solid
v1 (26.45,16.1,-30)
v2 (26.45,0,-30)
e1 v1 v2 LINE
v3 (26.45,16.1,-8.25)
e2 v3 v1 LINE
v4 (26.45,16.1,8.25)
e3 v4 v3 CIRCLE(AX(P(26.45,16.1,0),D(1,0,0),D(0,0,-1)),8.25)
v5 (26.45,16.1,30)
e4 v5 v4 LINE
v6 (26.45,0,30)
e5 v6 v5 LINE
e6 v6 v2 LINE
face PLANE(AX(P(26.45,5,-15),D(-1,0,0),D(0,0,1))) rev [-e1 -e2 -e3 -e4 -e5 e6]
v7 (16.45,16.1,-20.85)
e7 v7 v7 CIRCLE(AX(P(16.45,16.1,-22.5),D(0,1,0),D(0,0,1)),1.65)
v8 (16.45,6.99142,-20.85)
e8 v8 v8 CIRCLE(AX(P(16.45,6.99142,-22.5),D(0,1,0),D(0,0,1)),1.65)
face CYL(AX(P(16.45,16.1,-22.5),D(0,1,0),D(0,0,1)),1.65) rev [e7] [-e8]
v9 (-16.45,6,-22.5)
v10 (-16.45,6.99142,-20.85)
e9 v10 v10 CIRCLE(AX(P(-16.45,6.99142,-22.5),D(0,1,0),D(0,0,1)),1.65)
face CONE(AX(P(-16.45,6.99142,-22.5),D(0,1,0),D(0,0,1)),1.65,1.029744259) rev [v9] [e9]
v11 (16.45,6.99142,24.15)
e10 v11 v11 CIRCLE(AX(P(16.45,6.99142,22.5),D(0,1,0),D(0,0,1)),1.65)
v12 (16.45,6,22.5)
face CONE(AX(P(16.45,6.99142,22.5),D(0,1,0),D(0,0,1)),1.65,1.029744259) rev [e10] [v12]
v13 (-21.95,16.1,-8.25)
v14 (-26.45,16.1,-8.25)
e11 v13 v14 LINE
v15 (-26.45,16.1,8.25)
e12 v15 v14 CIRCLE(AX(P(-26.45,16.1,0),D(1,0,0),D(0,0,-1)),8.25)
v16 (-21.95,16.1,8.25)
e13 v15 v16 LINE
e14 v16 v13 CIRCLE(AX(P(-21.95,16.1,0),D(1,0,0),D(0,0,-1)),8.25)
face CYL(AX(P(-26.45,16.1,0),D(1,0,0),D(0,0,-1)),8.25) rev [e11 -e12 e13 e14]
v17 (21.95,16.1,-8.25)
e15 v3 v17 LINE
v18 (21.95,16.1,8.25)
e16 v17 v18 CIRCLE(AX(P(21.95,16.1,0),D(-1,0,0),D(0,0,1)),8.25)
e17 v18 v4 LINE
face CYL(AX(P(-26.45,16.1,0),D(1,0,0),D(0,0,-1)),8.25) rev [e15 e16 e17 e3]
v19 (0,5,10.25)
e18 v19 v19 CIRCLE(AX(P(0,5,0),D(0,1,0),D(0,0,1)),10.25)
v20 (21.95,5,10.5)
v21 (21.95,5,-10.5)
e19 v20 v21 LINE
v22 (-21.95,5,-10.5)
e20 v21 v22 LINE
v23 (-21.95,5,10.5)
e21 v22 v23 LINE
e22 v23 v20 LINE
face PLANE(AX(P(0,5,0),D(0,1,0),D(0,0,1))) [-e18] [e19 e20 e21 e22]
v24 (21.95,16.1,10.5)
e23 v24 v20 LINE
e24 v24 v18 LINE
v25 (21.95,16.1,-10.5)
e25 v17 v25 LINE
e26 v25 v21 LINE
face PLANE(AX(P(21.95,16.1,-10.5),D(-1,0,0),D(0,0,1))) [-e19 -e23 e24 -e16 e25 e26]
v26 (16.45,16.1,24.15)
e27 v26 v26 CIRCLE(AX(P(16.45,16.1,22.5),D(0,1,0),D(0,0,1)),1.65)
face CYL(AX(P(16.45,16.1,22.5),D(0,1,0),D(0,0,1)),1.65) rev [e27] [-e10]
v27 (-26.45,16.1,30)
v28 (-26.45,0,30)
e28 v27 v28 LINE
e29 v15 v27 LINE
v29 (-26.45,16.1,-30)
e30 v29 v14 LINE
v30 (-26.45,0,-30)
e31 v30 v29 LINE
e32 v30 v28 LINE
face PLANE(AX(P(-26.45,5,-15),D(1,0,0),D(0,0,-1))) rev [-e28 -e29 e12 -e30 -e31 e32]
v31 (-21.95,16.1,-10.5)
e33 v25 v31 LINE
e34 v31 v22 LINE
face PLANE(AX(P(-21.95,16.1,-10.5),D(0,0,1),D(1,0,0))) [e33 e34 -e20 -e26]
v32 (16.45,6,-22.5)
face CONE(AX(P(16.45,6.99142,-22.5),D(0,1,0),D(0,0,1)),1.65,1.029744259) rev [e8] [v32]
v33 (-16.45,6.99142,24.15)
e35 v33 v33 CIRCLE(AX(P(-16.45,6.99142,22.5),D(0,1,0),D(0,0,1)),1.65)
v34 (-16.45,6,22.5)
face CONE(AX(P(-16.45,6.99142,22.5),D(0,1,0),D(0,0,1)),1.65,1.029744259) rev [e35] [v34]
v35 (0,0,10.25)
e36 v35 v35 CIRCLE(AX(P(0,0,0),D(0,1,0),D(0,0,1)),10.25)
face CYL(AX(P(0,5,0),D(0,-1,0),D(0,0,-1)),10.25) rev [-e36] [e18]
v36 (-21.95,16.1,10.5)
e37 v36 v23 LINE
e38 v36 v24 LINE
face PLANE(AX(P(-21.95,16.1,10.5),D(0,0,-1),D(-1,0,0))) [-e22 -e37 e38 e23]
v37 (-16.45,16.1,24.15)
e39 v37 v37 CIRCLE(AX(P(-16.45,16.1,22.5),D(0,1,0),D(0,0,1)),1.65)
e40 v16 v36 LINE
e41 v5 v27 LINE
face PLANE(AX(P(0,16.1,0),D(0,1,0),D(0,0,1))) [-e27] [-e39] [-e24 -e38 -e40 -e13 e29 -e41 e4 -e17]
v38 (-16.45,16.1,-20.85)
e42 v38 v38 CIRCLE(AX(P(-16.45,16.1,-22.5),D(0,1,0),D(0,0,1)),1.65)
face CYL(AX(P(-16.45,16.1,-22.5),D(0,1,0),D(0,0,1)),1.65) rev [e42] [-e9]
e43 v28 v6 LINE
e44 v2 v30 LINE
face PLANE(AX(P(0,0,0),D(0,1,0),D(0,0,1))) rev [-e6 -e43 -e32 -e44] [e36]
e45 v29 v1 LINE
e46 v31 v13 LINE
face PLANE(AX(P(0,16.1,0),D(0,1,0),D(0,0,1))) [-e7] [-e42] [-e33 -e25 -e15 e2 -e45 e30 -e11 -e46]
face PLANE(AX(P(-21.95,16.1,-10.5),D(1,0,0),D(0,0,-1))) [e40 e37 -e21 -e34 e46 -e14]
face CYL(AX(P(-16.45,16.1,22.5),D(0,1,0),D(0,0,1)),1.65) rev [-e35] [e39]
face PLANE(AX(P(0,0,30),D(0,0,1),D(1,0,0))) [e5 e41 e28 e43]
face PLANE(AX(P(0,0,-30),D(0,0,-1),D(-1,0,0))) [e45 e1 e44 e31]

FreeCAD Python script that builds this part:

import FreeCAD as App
import Part
import Sketcher

doc = App.newDocument("Part")
body = doc.addObject("PartDesign::Body", "Body")

sketch1 = body.newObject("Sketcher::SketchObject", "Sketch")
sketch1.AttachmentSupport = (doc.getObject("XZ_Plane"), [""])
sketch1.MapMode = "FlatFace"
sketch1.addGeometry([
    Part.LineSegment(App.Vector(-26, -15, 0), App.Vector(-26, 15, 0)),
    Part.LineSegment(App.Vector(-26, 15, 0), App.Vector(26, 15, 0)),
    Part.LineSegment(App.Vector(26, 15, 0), App.Vector(26, -15, 0)),
    Part.LineSegment(App.Vector(26, -15, 0), App.Vector(-26, -15, 0)),
    Part.Circle(App.Vector(0, 0, 0), App.Vector(0, 0, 1), 10),
], False)
sketch1.addConstraint([
    Sketcher.Constraint("Coincident", 0, 2, 1, 1),
    Sketcher.Constraint("Coincident", 1, 2, 2, 1),
    Sketcher.Constraint("Coincident", 2, 2, 3, 1),
    Sketcher.Constraint("Coincident", 3, 2, 0, 1),
    Sketcher.Constraint("Vertical", 0),
    Sketcher.Constraint("Horizontal", 1),
    Sketcher.Constraint("Vertical", 2),
    Sketcher.Constraint("Horizontal", 3),
    Sketcher.Constraint("Coincident", 4, 3, -1, 1),
    Sketcher.Constraint("Symmetric", 0, 2, 2, 2, -1, 1),
    Sketcher.Constraint("Diameter", 4, 20.5),
    Sketcher.Constraint("DistanceY", 0, 1, 0, 2, 30.0),
    Sketcher.Constraint("DistanceX", 1, 1, 1, 2, 52.9),
])
pad1 = body.newObject("PartDesign::Pad", "Pad")
pad1.Profile = sketch1
pad1.Length = 5
pad1.Reversed = True

sketch2 = body.newObject("Sketcher::SketchObject", "Sketch001")
sketch2.AttachmentSupport = (doc.getObject("XZ_Plane"), [""])
sketch2.MapMode = "FlatFace"
sketch2.AttachmentOffset = App.Placement(App.Vector(0, 0, -5), App.Rotation())
sketch2.addGeometry([
    Part.LineSegment(App.Vector(-26, -15, 0), App.Vector(-26, 15, 0)),
    Part.LineSegment(App.Vector(-26, 15, 0), App.Vector(26, 15, 0)),
    Part.LineSegment(App.Vector(26, 15, 0), App.Vector(26, -15, 0)),
    Part.LineSegment(App.Vector(26, -15, 0), App.Vector(-26, -15, 0)),
    Part.LineSegment(App.Vector(22, 10, 0), App.Vector(-22, 10, 0)),
    Part.LineSegment(App.Vector(-22, 10, 0), App.Vector(-22, -10, 0)),
    Part.LineSegment(App.Vector(-22, -10, 0), App.Vector(22, -10, 0)),
    Part.LineSegment(App.Vector(22, -10, 0), App.Vector(22, 10, 0)),
], False)
sketch2.addConstraint([
    Sketcher.Constraint("Coincident", 0, 2, 1, 1),
    Sketcher.Constraint("Coincident", 1, 2, 2, 1),
    Sketcher.Constraint("Coincident", 2, 2, 3, 1),
    Sketcher.Constraint("Coincident", 3, 2, 0, 1),
    Sketcher.Constraint("Coincident", 4, 2, 5, 1),
    Sketcher.Constraint("Coincident", 5, 2, 6, 1),
    Sketcher.Constraint("Coincident", 6, 2, 7, 1),
    Sketcher.Constraint("Coincident", 7, 2, 4, 1),
    Sketcher.Constraint("Vertical", 0),
    Sketcher.Constraint("Horizontal", 1),
    Sketcher.Constraint("Vertical", 2),
    Sketcher.Constraint("Horizontal", 3),
    Sketcher.Constraint("Horizontal", 4),
    Sketcher.Constraint("Vertical", 5),
    Sketcher.Constraint("Horizontal", 6),
    Sketcher.Constraint("Vertical", 7),
    Sketcher.Constraint("Symmetric", 0, 2, 2, 2, -1, 1),
    Sketcher.Constraint("Symmetric", 4, 2, 6, 2, -1, 1),
    Sketcher.Constraint("DistanceY", 0, 1, 0, 2, 30.0),
    Sketcher.Constraint("DistanceY", 5, 2, 5, 1, 21.0),
    Sketcher.Constraint("DistanceX", 1, 1, 1, 2, 52.9),
    Sketcher.Constraint("DistanceX", 4, 2, 4, 1, 43.9),
])
pad2 = body.newObject("PartDesign::Pad", "Pad001")
pad2.Profile = sketch2
pad2.Length = 11.1
pad2.Reversed = True

sketch3 = body.newObject("Sketcher::SketchObject", "Sketch002")
sketch3.AttachmentSupport = (doc.getObject("YZ_Plane"), [""])
sketch3.MapMode = "FlatFace"
sketch3.AttachmentOffset = App.Placement(App.Vector(0, 0, 26.45), App.Rotation())
sketch3.addGeometry(Part.Circle(App.Vector(16, 0, 0), App.Vector(0, 0, 1), 8), False)
sketch3.addConstraint([
    Sketcher.Constraint("PointOnObject", 0, 3, -1),
    Sketcher.Constraint("Diameter", 0, 16.5),
    Sketcher.Constraint("DistanceX", -1, 1, 0, 3, 16.1),
])
pocket1 = body.newObject("PartDesign::Pocket", "Pocket")
pocket1.Profile = sketch3
pocket1.Type = "ThroughAll"

sketch4 = body.newObject("Sketcher::SketchObject", "Sketch003")
sketch4.AttachmentSupport = (doc.getObject("XY_Plane"), [""])
sketch4.MapMode = "FlatFace"
sketch4.AttachmentOffset = App.Placement(App.Vector(0, 0, 15), App.Rotation())
sketch4.addGeometry([
    Part.LineSegment(App.Vector(-26, 16, 0), App.Vector(-26, 11, 0)),
    Part.LineSegment(App.Vector(-26, 11, 0), App.Vector(26, 11, 0)),
    Part.LineSegment(App.Vector(26, 11, 0), App.Vector(26, 16, 0)),
    Part.LineSegment(App.Vector(26, 16, 0), App.Vector(-26, 16, 0)),
], False)
sketch4.addConstraint([
    Sketcher.Constraint("Coincident", 0, 2, 1, 1),
    Sketcher.Constraint("Coincident", 1, 2, 2, 1),
    Sketcher.Constraint("Coincident", 2, 2, 3, 1),
    Sketcher.Constraint("Coincident", 3, 2, 0, 1),
    Sketcher.Constraint("Vertical", 0),
    Sketcher.Constraint("Horizontal", 1),
    Sketcher.Constraint("Vertical", 2),
    Sketcher.Constraint("Horizontal", 3),
    Sketcher.Constraint("DistanceY", 0, 2, 0, 1, 5.0),
    Sketcher.Constraint("DistanceX", 1, 1, 1, 2, 52.9),
    Sketcher.Constraint("DistanceY", -1, 1, 0, 2, 11.1),
    Sketcher.Constraint("DistanceX", 0, 2, -1, 1, 26.45),
])
pad3 = body.newObject("PartDesign::Pad", "Pad002")
pad3.Profile = sketch4
pad3.Length = 15

sketch5 = body.newObject("Sketcher::SketchObject", "Sketch004")
sketch5.AttachmentSupport = (doc.getObject("XY_Plane"), [""])
sketch5.MapMode = "FlatFace"
sketch5.AttachmentOffset = App.Placement(App.Vector(0, 0, -15), App.Rotation())
sketch5.addGeometry([
    Part.LineSegment(App.Vector(26, 16, 0), App.Vector(26, 11, 0)),
    Part.LineSegment(App.Vector(26, 11, 0), App.Vector(-26, 11, 0)),
    Part.LineSegment(App.Vector(-26, 11, 0), App.Vector(-26, 16, 0)),
    Part.LineSegment(App.Vector(-26, 16, 0), App.Vector(26, 16, 0)),
], False)
sketch5.addConstraint([
    Sketcher.Constraint("Coincident", 0, 2, 1, 1),
    Sketcher.Constraint("Coincident", 1, 2, 2, 1),
    Sketcher.Constraint("Coincident", 2, 2, 3, 1),
    Sketcher.Constraint("Coincident", 3, 2, 0, 1),
    Sketcher.Constraint("Vertical", 0),
    Sketcher.Constraint("Horizontal", 1),
    Sketcher.Constraint("Vertical", 2),
    Sketcher.Constraint("Horizontal", 3),
    Sketcher.Constraint("DistanceY", 0, 2, 0, 1, 5.0),
    Sketcher.Constraint("DistanceX", 1, 2, 1, 1, 52.9),
    Sketcher.Constraint("DistanceY", -1, 1, 0, 2, 11.1),
    Sketcher.Constraint("DistanceX", -1, 1, 0, 2, 26.45),
])
pad4 = body.newObject("PartDesign::Pad", "Pad003")
pad4.Profile = sketch5
pad4.Length = 15
pad4.Reversed = True

sketch6 = body.newObject("Sketcher::SketchObject", "Sketch005")
sketch6.AttachmentSupport = (doc.getObject("XZ_Plane"), [""])
sketch6.MapMode = "FlatFace"
sketch6.AttachmentOffset = App.Placement(App.Vector(0, 0, -11.1), App.Rotation())
sketch6.addGeometry([
    Part.LineSegment(App.Vector(-26, 30, 0), App.Vector(-26, 15, 0)),
    Part.LineSegment(App.Vector(-26, 15, 0), App.Vector(26, 15, 0)),
    Part.LineSegment(App.Vector(26, 15, 0), App.Vector(26, 30, 0)),
    Part.LineSegment(App.Vector(26, 30, 0), App.Vector(-26, 30, 0)),
    Part.LineSegment(App.Vector(-26, -15, 0), App.Vector(-26, -30, 0)),
    Part.LineSegment(App.Vector(-26, -30, 0), App.Vector(26, -30, 0)),
    Part.LineSegment(App.Vector(26, -30, 0), App.Vector(26, -15, 0)),
    Part.LineSegment(App.Vector(26, -15, 0), App.Vector(-26, -15, 0)),
], False)
sketch6.addConstraint([
    Sketcher.Constraint("Coincident", 0, 2, 1, 1),
    Sketcher.Constraint("Coincident", 1, 2, 2, 1),
    Sketcher.Constraint("Coincident", 2, 2, 3, 1),
    Sketcher.Constraint("Coincident", 3, 2, 0, 1),
    Sketcher.Constraint("Coincident", 4, 2, 5, 1),
    Sketcher.Constraint("Coincident", 5, 2, 6, 1),
    Sketcher.Constraint("Coincident", 6, 2, 7, 1),
    Sketcher.Constraint("Coincident", 7, 2, 4, 1),
    Sketcher.Constraint("Vertical", 0),
    Sketcher.Constraint("Horizontal", 1),
    Sketcher.Constraint("Vertical", 2),
    Sketcher.Constraint("Horizontal", 3),
    Sketcher.Constraint("Vertical", 4),
    Sketcher.Constraint("Horizontal", 5),
    Sketcher.Constraint("Vertical", 6),
    Sketcher.Constraint("Horizontal", 7),
    Sketcher.Constraint("Symmetric", 2, 2, 4, 2, -1, 1),
    Sketcher.Constraint("Symmetric", 0, 2, 6, 2, -1, 1),
    Sketcher.Constraint("Vertical", 3, 2, 4, 2),
    Sketcher.Constraint("DistanceY", 0, 2, 0, 1, 15.0),
    Sketcher.Constraint("DistanceX", 1, 1, 1, 2, 52.9),
    Sketcher.Constraint("DistanceY", -1, 1, 0, 2, 15.0),
])
pad5 = body.newObject("PartDesign::Pad", "Pad004")
pad5.Profile = sketch6
pad5.Length = 11.1

sketch7 = body.newObject("Sketcher::SketchObject", "Sketch006")
sketch7.AttachmentSupport = (doc.getObject("XZ_Plane"), [""])
sketch7.MapMode = "FlatFace"
sketch7.AttachmentOffset = App.Placement(App.Vector(0, 0, -16.1), App.Rotation())
sketch7.addGeometry([
    Part.Circle(App.Vector(-16.4, 22.5, 0), App.Vector(0, 0, 1), 1.6),
    Part.Circle(App.Vector(16.4, 22.5, 0), App.Vector(0, 0, 1), 1.6),
    Part.Circle(App.Vector(16.4, -22.5, 0), App.Vector(0, 0, 1), 1.6),
    Part.Circle(App.Vector(-16.4, -22.5, 0), App.Vector(0, 0, 1), 1.6),
], False)
sketch7.addConstraint([
    Sketcher.Constraint("Equal", 0, 1),
    Sketcher.Constraint("Equal", 1, 2),
    Sketcher.Constraint("Equal", 2, 3),
    Sketcher.Constraint("Symmetric", 0, 3, 2, 3, -1, 1),
    Sketcher.Constraint("Symmetric", 1, 3, 3, 3, -1, 1),
    Sketcher.Constraint("Symmetric", 0, 3, 1, 3, -2),
    Sketcher.Constraint("Diameter", 0, 3.3),
    Sketcher.Constraint("DistanceY", 2, 3, 1, 3, 45.0),
    Sketcher.Constraint("DistanceX", 0, 3, 1, 3, 32.9),
])
doc.recompute()
hole = body.newObject("PartDesign::Hole", "Hole")
hole.Profile = sketch7
hole.ThreadType = "None"
hole.Diameter = 3.3
hole.DepthType = "Dimension"
hole.Depth = 9.10858
hole.DrillPoint = "Angled"
hole.DrillPointAngle = 118
hole.Reversed = True

doc.recompute()
